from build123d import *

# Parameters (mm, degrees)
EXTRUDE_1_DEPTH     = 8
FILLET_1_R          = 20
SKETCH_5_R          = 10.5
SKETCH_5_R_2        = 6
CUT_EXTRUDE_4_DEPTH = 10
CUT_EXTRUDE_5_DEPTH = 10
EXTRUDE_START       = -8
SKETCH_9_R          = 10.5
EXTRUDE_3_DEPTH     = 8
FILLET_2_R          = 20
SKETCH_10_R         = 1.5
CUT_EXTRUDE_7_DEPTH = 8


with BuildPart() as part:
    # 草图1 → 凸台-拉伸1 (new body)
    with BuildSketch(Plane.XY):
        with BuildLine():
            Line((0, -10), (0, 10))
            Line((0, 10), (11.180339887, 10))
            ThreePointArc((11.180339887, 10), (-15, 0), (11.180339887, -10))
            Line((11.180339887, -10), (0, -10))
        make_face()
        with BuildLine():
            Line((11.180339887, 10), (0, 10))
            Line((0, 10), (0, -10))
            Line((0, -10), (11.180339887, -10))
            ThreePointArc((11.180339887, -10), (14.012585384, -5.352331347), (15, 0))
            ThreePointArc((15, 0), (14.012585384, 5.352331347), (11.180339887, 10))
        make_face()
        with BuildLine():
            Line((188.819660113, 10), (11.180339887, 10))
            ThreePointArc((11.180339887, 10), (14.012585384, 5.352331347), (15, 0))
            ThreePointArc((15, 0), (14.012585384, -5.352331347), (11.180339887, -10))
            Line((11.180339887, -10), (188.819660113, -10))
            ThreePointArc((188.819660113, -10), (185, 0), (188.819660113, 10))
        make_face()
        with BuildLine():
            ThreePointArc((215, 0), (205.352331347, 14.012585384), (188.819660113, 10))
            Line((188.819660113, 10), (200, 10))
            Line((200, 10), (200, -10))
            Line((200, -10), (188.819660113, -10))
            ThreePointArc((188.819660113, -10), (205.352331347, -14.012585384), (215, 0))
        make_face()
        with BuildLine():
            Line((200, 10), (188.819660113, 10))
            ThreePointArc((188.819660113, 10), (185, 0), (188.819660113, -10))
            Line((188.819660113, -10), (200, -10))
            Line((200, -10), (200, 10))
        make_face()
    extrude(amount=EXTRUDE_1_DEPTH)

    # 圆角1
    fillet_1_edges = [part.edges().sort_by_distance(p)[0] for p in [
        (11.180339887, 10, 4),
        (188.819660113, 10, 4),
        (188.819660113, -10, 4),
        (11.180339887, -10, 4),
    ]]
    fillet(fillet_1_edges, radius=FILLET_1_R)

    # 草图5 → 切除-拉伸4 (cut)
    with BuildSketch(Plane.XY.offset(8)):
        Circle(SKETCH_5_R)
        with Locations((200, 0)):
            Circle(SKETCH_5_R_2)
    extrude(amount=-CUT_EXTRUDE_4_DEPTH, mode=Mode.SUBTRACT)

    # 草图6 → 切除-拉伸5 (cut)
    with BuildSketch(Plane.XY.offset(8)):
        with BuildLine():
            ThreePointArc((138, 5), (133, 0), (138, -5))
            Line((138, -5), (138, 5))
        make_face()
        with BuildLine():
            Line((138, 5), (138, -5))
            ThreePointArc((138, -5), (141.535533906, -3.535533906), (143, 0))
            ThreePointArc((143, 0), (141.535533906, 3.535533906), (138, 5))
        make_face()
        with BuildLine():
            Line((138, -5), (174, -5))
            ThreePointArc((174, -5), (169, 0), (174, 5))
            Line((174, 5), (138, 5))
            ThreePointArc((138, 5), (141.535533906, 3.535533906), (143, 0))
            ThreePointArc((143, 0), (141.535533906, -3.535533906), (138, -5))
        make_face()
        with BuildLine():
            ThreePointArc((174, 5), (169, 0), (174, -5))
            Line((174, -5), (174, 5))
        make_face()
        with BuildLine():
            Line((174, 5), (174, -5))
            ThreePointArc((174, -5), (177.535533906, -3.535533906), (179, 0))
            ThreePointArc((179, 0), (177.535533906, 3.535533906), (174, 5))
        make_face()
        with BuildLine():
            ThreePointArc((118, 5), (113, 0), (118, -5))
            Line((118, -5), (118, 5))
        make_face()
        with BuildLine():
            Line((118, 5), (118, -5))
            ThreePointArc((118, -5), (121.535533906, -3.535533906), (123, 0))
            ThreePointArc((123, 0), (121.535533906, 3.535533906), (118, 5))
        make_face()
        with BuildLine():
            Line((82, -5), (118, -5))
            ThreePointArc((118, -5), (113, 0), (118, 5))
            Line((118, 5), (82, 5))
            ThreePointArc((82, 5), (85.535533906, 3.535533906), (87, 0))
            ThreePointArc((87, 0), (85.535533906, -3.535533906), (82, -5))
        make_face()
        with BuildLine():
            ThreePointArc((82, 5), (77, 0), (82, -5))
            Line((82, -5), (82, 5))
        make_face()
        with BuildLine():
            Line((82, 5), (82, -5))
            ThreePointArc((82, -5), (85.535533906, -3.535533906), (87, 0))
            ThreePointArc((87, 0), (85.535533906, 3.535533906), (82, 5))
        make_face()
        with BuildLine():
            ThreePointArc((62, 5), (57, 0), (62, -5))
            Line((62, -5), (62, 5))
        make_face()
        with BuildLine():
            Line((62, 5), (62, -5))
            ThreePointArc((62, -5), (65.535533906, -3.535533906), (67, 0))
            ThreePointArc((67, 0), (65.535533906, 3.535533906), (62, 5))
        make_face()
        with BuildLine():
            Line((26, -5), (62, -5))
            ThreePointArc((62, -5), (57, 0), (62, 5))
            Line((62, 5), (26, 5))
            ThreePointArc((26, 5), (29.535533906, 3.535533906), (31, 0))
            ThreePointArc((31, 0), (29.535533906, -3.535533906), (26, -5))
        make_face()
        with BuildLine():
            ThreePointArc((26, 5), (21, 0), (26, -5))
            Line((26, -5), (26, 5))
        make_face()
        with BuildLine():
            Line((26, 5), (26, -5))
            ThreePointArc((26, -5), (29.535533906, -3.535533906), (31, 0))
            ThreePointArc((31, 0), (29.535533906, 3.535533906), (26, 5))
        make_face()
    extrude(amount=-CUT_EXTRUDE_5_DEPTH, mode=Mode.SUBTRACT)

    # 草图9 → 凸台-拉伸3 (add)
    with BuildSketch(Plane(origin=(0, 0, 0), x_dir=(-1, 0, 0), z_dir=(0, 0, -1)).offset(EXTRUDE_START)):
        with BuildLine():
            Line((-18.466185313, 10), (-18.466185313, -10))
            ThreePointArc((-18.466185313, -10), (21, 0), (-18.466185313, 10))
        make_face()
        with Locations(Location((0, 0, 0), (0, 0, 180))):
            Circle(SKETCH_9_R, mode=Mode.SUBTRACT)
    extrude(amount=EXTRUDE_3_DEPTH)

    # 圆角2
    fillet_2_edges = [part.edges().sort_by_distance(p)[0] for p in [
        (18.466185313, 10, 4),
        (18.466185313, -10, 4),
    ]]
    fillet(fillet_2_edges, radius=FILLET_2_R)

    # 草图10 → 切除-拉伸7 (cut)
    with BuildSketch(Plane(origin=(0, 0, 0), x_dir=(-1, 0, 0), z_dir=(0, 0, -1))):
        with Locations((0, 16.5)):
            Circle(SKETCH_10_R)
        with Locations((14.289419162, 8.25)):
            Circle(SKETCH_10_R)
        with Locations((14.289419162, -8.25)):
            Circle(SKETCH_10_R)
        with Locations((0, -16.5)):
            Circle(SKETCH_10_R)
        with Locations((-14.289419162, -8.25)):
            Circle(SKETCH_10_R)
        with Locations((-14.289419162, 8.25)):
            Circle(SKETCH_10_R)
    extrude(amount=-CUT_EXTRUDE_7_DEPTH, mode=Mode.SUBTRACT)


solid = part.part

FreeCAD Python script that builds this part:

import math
import FreeCAD as App
import Part
import Sketcher

V = App.Vector


def edges_at(feature, points):
    """Names of the edges that pass closest to the given points."""
    edges = feature.Shape.Edges
    near = lambda p: min(range(len(edges)), key=lambda i: edges[i].distToShape(Part.Vertex(*p))[0])
    return sorted({f"Edge{near(p) + 1}" for p in points})

doc = App.newDocument("Part")
body = doc.addObject("PartDesign::Body", "Body")

sketch1 = doc.addObject("Sketcher::SketchObject", "Sketch")
body.addObject(sketch1)
sketch1.AttachmentSupport = (doc.XY_Plane, [""])
sketch1.MapMode = "FlatFace"
sketch1.addGeometry(Part.LineSegment(V(11.18034, -10, 0), V(188.81966, -10, 0)), False)
sketch1.addGeometry(Part.ArcOfCircle(Part.Circle(V(200, 0, 0), V(0, 0, 1), 15), math.radians(-138.189685), math.radians(0)), False)
sketch1.addGeometry(Part.ArcOfCircle(Part.Circle(V(200, 0, 0), V(0, 0, 1), 15), math.radians(0), math.radians(138.189685)), False)
sketch1.addGeometry(Part.LineSegment(V(188.81966, 10, 0), V(11.18034, 10, 0)), False)
sketch1.addGeometry(Part.ArcOfCircle(Part.Circle(V(0, 0, 0), V(0, 0, 1), 15), math.radians(41.810315), math.radians(318.189685)), False)
sketch1.addConstraint(Sketcher.Constraint("Coincident", 0, 2, 1, 1))
sketch1.addConstraint(Sketcher.Constraint("Tangent", 1, 2, 2, 1))
sketch1.addConstraint(Sketcher.Constraint("Coincident", 2, 2, 3, 1))
sketch1.addConstraint(Sketcher.Constraint("Coincident", 3, 2, 4, 1))
sketch1.addConstraint(Sketcher.Constraint("Coincident", 4, 2, 0, 1))
sketch1.addConstraint(Sketcher.Constraint("Horizontal", 0))
sketch1.addConstraint(Sketcher.Constraint("Horizontal", 3))
sketch1.addConstraint(Sketcher.Constraint("Coincident", 4, 3, -1, 1))
sketch1.addConstraint(Sketcher.Constraint("Equal", 1, 2))
sketch1.addConstraint(Sketcher.Constraint("Equal", 2, 4))
sketch1.addConstraint(Sketcher.Constraint("Symmetric", 0, 2, 2, 2, -1))
sketch1.addConstraint(Sketcher.Constraint("PointOnObject", 1, 2, -1))
sketch1.addConstraint(Sketcher.Constraint("Radius", 1, 15.0))
sketch1.addConstraint(Sketcher.Constraint("DistanceX", -1, 1, 1, 3, 200.0))
sketch1.addConstraint(Sketcher.Constraint("DistanceY", 0, 2, -1, 1, 10.0))
pad1 = doc.addObject("PartDesign::Pad", "Pad")
body.addObject(pad1)
pad1.Profile = sketch1
pad1.Length = 8
doc.recompute()

fillet = doc.addObject("PartDesign::Fillet", "Fillet")
body.addObject(fillet)
fillet.Base = (pad1, edges_at(pad1, [
    (11.18, 10, 4),
    (188.82, 10, 4),
    (188.82, -10, 4),
    (11.18, -10, 4),
]))
fillet.Radius = 20

sketch2 = doc.addObject("Sketcher::SketchObject", "Sketch001")
body.addObject(sketch2)
sketch2.AttachmentSupport = (doc.XY_Plane, [""])
sketch2.MapMode = "FlatFace"
sketch2.AttachmentOffset = App.Placement(V(0, 0, 8), App.Rotation())
sketch2.addGeometry(Part.Circle(V(0, 0, 0), V(0, 0, 1), 10.5), False)
sketch2.addGeometry(Part.Circle(V(200, 0, 0), V(0, 0, 1), 6), False)
sketch2.addConstraint(Sketcher.Constraint("Coincident", 0, 3, -1, 1))
sketch2.addConstraint(Sketcher.Constraint("PointOnObject", 1, 3, -1))
sketch2.addConstraint(Sketcher.Constraint("Diameter", 0, 21.0))
sketch2.addConstraint(Sketcher.Constraint("Diameter", 1, 12.0))
sketch2.addConstraint(Sketcher.Constraint("DistanceX", -1, 1, 1, 3, 200.0))
pocket1 = doc.addObject("PartDesign::Pocket", "Pocket")
body.addObject(pocket1)
pocket1.Profile = sketch2
pocket1.Length = 10

sketch3 = doc.addObject("Sketcher::SketchObject", "Sketch002")
body.addObject(sketch3)
sketch3.AttachmentSupport = (doc.XY_Plane, [""])
sketch3.MapMode = "FlatFace"
sketch3.AttachmentOffset = App.Placement(V(0, 0, 8), App.Rotation())
sketch3.addGeometry(Part.LineSegment(V(138, -5, 0), V(174, -5, 0)), False)
sketch3.addGeometry(Part.ArcOfCircle(Part.Circle(V(174, 0, 0), V(0, 0, 1), 5), math.radians(-90), math.radians(0)), False)
sketch3.addGeometry(Part.ArcOfCircle(Part.Circle(V(174, 0, 0), V(0, 0, 1), 5), math.radians(0), math.radians(90)), False)
sketch3.addGeometry(Part.LineSegment(V(174, 5, 0), V(138, 5, 0)), False)
sketch3.addGeometry(Part.ArcOfCircle(Part.Circle(V(138, 0, 0), V(0, 0, 1), 5), math.radians(90), math.radians(270)), False)
sketch3.addGeometry(Part.LineSegment(V(118, 5, 0), V(82, 5, 0)), False)
sketch3.addGeometry(Part.ArcOfCircle(Part.Circle(V(82, 0, 0), V(0, 0, 1), 5), math.radians(90), math.radians(270)), False)
sketch3.addGeometry(Part.LineSegment(V(82, -5, 0), V(118, -5, 0)), False)
sketch3.addGeometry(Part.ArcOfCircle(Part.Circle(V(118, 0, 0), V(0, 0, 1), 5), math.radians(-90), math.radians(0)), False)
sketch3.addGeometry(Part.ArcOfCircle(Part.Circle(V(118, 0, 0), V(0, 0, 1), 5), math.radians(0), math.radians(90)), False)
sketch3.addGeometry(Part.LineSegment(V(62, 5, 0), V(26, 5, 0)), False)
sketch3.addGeometry(Part.ArcOfCircle(Part.Circle(V(26, 0, 0), V(0, 0, 1), 5), math.radians(90), math.radians(270)), False)
sketch3.addGeometry(Part.LineSegment(V(26, -5, 0), V(62, -5, 0)), False)
sketch3.addGeometry(Part.ArcOfCircle(Part.Circle(V(62, 0, 0), V(0, 0, 1), 5), math.radians(-90), math.radians(0)), False)
sketch3.addGeometry(Part.ArcOfCircle(Part.Circle(V(62, 0, 0), V(0, 0, 1), 5), math.radians(0), math.radians(90)), False)
sketch3.addConstraint(Sketcher.Constraint("Tangent", 0, 2, 1, 1))
sketch3.addConstraint(Sketcher.Constraint("Tangent", 1, 2, 2, 1))
sketch3.addConstraint(Sketcher.Constraint("Tangent", 2, 2, 3, 1))
sketch3.addConstraint(Sketcher.Constraint("Tangent", 3, 2, 4, 1))
sketch3.addConstraint(Sketcher.Constraint("Tangent", 4, 2, 0, 1))
sketch3.addConstraint(Sketcher.Constraint("Tangent", 5, 2, 6, 1))
sketch3.addConstraint(Sketcher.Constraint("Tangent", 6, 2, 7, 1))
sketch3.addConstraint(Sketcher.Constraint("Tangent", 7, 2, 8, 1))
sketch3.addConstraint(Sketcher.Constraint("Tangent", 8, 2, 9, 1))
sketch3.addConstraint(Sketcher.Constraint("Tangent", 9, 2, 5, 1))
sketch3.addConstraint(Sketcher.Constraint("Tangent", 10, 2, 11, 1))
sketch3.addConstraint(Sketcher.Constraint("Tangent", 11, 2, 12, 1))
sketch3.addConstraint(Sketcher.Constraint("Tangent", 12, 2, 13, 1))
sketch3.addConstraint(Sketcher.Constraint("Tangent", 13, 2, 14, 1))
sketch3.addConstraint(Sketcher.Constraint("Tangent", 14, 2, 10, 1))
sketch3.addConstraint(Sketcher.Constraint("Horizontal", 0))
sketch3.addConstraint(Sketcher.Constraint("Horizontal", 3))
sketch3.addConstraint(Sketcher.Constraint("Horizontal", 5))
sketch3.addConstraint(Sketcher.Constraint("Horizontal", 7))
sketch3.addConstraint(Sketcher.Constraint("Horizontal", 10))
sketch3.addConstraint(Sketcher.Constraint("Horizontal", 12))
sketch3.addConstraint(Sketcher.Constraint("Equal", 1, 2))
sketch3.addConstraint(Sketcher.Constraint("Equal", 4, 6))
sketch3.addConstraint(Sketcher.Constraint("Equal", 6, 8))
sketch3.addConstraint(Sketcher.Constraint("Equal", 9, 11))
sketch3.addConstraint(Sketcher.Constraint("Equal", 11, 13))
sketch3.addConstraint(Sketcher.Constraint("PointOnObject", 1, 3, -1))
sketch3.addConstraint(Sketcher.Constraint("PointOnObject", 6, 3, -1))
sketch3.addConstraint(Sketcher.Constraint("PointOnObject", 11, 3, -1))
sketch3.addConstraint(Sketcher.Constraint("PointOnObject", 1, 2, -1))
sketch3.addConstraint(Sketcher.Constraint("PointOnObject", 8, 2, -1))
sketch3.addConstraint(Sketcher.Constraint("PointOnObject", 13, 2, -1))
sketch3.addConstraint(Sketcher.Constraint("Equal", 3, 5))
sketch3.addConstraint(Sketcher.Constraint("Equal", 7, 10))
sketch3.addConstraint(Sketcher.Constraint("Radius", 1, 5.0))
sketch3.addConstraint(Sketcher.Constraint("DistanceX", 0, 1, 0, 2, 36.0))
sketch3.addConstraint(Sketcher.Constraint("DistanceX", -1, 1, 1, 3, 174.0))
sketch3.addConstraint(Sketcher.Constraint("DistanceX", -1, 1, 6, 3, 82.0))
sketch3.addConstraint(Sketcher.Constraint("DistanceX", -1, 1, 11, 3, 26.0))
pocket2 = doc.addObject("PartDesign::Pocket", "Pocket001")
body.addObject(pocket2)
pocket2.Profile = sketch3
pocket2.Length = 10

sketch4 = doc.addObject("Sketcher::SketchObject", "Sketch003")
body.addObject(sketch4)
sketch4.AttachmentSupport = (doc.XY_Plane, [""])
sketch4.MapMode = "FlatFace"
sketch4.AttachmentOffset = App.Placement(V(0, 0, 8), App.Rotation())
sketch4.addGeometry(Part.LineSegment(V(18.466185, 10, 0), V(18.466185, -10, 0)), False)
sketch4.addGeometry(Part.ArcOfCircle(Part.Circle(V(0, 0, 0), V(0, 0, 1), 21), math.radians(28.43689), math.radians(331.56311)), False)
sketch4.addGeometry(Part.Circle(V(0, 0, 0), V(0, 0, 1), 10.5), False)
sketch4.addConstraint(Sketcher.Constraint("Coincident", 0, 1, 1, 1))
sketch4.addConstraint(Sketcher.Constraint("Coincident", 1, 2, 0, 2))
sketch4.addConstraint(Sketcher.Constraint("Vertical", 0))
sketch4.addConstraint(Sketcher.Constraint("Coincident", 1, 3, -1, 1))
sketch4.addConstraint(Sketcher.Constraint("Coincident", 2, 3, -1, 1))
sketch4.addConstraint(Sketcher.Constraint("Diameter", 2, 21.0))
sketch4.addConstraint(Sketcher.Constraint("Radius", 1, 21.0))
sketch4.addConstraint(Sketcher.Constraint("DistanceY", 0, 2, 0, 1, 20.0))
pad2 = doc.addObject("PartDesign::Pad", "Pad001")
body.addObject(pad2)
pad2.Profile = sketch4
pad2.Length = 8
pad2.Reversed = True
doc.recompute()

fillet2 = doc.addObject("PartDesign::Fillet", "Fillet001")
body.addObject(fillet2)
fillet2.Base = (pad2, edges_at(pad2, [(18.466, 10, 4), (18.466, -10, 4)]))
fillet2.Radius = 20

sketch5 = doc.addObject("Sketcher::SketchObject", "Sketch004")
body.addObject(sketch5)
sketch5.AttachmentSupport = (doc.XY_Plane, [""])
sketch5.MapMode = "FlatFace"
sketch5.addGeometry(Part.Circle(V(0, 16.5, 0), V(0, 0, 1), 1.5), False)
sketch5.addGeometry(Part.Circle(V(-14.289419, 8.25, 0), V(0, 0, 1), 1.5), False)
sketch5.addGeometry(Part.Circle(V(-14.289419, -8.25, 0), V(0, 0, 1), 1.5), False)
sketch5.addGeometry(Part.Circle(V(0, -16.5, 0), V(0, 0, 1), 1.5), False)
sketch5.addGeometry(Part.Circle(V(14.289419, -8.25, 0), V(0, 0, 1), 1.5), False)
sketch5.addGeometry(Part.Circle(V(14.289419, 8.25, 0), V(0, 0, 1), 1.5), False)
sketch5.addConstraint(Sketcher.Constraint("Equal", 0, 1))
sketch5.addConstraint(Sketcher.Constraint("Equal", 1, 2))
sketch5.addConstraint(Sketcher.Constraint("Equal", 2, 3))
sketch5.addConstraint(Sketcher.Constraint("Equal", 3, 4))
sketch5.addConstraint(Sketcher.Constraint("Equal", 4, 5))
sketch5.addConstraint(Sketcher.Constraint("Symmetric", 0, 3, 3, 3, -1, 1))
sketch5.addConstraint(Sketcher.Constraint("Symmetric", 1, 3, 4, 3, -1, 1))
sketch5.addConstraint(Sketcher.Constraint("Symmetric", 2, 3, 5, 3, -1, 1))
sketch5.addConstraint(Sketcher.Constraint("Symmetric", 2, 3, 4, 3, -2))
sketch5.addConstraint(Sketcher.Constraint("PointOnObject", 0, 3, -2))
sketch5.addConstraint(Sketcher.Constraint("Diameter", 0, 3.0))
sketch5.addConstraint(Sketcher.Constraint("DistanceY", 3, 3, 0, 3, 33.0))
sketch5.addConstraint(Sketcher.Constraint("DistanceY", 2, 3, 1, 3, 16.5))
sketch5.addConstraint(Sketcher.Constraint("DistanceX", 1, 3, -1, 1, 14.289419))
pocket3 = doc.addObject("PartDesign::Pocket", "Pocket002")
body.addObject(pocket3)
pocket3.Profile = sketch5
pocket3.Length = 8
pocket3.Reversed = True

doc.recompute()
